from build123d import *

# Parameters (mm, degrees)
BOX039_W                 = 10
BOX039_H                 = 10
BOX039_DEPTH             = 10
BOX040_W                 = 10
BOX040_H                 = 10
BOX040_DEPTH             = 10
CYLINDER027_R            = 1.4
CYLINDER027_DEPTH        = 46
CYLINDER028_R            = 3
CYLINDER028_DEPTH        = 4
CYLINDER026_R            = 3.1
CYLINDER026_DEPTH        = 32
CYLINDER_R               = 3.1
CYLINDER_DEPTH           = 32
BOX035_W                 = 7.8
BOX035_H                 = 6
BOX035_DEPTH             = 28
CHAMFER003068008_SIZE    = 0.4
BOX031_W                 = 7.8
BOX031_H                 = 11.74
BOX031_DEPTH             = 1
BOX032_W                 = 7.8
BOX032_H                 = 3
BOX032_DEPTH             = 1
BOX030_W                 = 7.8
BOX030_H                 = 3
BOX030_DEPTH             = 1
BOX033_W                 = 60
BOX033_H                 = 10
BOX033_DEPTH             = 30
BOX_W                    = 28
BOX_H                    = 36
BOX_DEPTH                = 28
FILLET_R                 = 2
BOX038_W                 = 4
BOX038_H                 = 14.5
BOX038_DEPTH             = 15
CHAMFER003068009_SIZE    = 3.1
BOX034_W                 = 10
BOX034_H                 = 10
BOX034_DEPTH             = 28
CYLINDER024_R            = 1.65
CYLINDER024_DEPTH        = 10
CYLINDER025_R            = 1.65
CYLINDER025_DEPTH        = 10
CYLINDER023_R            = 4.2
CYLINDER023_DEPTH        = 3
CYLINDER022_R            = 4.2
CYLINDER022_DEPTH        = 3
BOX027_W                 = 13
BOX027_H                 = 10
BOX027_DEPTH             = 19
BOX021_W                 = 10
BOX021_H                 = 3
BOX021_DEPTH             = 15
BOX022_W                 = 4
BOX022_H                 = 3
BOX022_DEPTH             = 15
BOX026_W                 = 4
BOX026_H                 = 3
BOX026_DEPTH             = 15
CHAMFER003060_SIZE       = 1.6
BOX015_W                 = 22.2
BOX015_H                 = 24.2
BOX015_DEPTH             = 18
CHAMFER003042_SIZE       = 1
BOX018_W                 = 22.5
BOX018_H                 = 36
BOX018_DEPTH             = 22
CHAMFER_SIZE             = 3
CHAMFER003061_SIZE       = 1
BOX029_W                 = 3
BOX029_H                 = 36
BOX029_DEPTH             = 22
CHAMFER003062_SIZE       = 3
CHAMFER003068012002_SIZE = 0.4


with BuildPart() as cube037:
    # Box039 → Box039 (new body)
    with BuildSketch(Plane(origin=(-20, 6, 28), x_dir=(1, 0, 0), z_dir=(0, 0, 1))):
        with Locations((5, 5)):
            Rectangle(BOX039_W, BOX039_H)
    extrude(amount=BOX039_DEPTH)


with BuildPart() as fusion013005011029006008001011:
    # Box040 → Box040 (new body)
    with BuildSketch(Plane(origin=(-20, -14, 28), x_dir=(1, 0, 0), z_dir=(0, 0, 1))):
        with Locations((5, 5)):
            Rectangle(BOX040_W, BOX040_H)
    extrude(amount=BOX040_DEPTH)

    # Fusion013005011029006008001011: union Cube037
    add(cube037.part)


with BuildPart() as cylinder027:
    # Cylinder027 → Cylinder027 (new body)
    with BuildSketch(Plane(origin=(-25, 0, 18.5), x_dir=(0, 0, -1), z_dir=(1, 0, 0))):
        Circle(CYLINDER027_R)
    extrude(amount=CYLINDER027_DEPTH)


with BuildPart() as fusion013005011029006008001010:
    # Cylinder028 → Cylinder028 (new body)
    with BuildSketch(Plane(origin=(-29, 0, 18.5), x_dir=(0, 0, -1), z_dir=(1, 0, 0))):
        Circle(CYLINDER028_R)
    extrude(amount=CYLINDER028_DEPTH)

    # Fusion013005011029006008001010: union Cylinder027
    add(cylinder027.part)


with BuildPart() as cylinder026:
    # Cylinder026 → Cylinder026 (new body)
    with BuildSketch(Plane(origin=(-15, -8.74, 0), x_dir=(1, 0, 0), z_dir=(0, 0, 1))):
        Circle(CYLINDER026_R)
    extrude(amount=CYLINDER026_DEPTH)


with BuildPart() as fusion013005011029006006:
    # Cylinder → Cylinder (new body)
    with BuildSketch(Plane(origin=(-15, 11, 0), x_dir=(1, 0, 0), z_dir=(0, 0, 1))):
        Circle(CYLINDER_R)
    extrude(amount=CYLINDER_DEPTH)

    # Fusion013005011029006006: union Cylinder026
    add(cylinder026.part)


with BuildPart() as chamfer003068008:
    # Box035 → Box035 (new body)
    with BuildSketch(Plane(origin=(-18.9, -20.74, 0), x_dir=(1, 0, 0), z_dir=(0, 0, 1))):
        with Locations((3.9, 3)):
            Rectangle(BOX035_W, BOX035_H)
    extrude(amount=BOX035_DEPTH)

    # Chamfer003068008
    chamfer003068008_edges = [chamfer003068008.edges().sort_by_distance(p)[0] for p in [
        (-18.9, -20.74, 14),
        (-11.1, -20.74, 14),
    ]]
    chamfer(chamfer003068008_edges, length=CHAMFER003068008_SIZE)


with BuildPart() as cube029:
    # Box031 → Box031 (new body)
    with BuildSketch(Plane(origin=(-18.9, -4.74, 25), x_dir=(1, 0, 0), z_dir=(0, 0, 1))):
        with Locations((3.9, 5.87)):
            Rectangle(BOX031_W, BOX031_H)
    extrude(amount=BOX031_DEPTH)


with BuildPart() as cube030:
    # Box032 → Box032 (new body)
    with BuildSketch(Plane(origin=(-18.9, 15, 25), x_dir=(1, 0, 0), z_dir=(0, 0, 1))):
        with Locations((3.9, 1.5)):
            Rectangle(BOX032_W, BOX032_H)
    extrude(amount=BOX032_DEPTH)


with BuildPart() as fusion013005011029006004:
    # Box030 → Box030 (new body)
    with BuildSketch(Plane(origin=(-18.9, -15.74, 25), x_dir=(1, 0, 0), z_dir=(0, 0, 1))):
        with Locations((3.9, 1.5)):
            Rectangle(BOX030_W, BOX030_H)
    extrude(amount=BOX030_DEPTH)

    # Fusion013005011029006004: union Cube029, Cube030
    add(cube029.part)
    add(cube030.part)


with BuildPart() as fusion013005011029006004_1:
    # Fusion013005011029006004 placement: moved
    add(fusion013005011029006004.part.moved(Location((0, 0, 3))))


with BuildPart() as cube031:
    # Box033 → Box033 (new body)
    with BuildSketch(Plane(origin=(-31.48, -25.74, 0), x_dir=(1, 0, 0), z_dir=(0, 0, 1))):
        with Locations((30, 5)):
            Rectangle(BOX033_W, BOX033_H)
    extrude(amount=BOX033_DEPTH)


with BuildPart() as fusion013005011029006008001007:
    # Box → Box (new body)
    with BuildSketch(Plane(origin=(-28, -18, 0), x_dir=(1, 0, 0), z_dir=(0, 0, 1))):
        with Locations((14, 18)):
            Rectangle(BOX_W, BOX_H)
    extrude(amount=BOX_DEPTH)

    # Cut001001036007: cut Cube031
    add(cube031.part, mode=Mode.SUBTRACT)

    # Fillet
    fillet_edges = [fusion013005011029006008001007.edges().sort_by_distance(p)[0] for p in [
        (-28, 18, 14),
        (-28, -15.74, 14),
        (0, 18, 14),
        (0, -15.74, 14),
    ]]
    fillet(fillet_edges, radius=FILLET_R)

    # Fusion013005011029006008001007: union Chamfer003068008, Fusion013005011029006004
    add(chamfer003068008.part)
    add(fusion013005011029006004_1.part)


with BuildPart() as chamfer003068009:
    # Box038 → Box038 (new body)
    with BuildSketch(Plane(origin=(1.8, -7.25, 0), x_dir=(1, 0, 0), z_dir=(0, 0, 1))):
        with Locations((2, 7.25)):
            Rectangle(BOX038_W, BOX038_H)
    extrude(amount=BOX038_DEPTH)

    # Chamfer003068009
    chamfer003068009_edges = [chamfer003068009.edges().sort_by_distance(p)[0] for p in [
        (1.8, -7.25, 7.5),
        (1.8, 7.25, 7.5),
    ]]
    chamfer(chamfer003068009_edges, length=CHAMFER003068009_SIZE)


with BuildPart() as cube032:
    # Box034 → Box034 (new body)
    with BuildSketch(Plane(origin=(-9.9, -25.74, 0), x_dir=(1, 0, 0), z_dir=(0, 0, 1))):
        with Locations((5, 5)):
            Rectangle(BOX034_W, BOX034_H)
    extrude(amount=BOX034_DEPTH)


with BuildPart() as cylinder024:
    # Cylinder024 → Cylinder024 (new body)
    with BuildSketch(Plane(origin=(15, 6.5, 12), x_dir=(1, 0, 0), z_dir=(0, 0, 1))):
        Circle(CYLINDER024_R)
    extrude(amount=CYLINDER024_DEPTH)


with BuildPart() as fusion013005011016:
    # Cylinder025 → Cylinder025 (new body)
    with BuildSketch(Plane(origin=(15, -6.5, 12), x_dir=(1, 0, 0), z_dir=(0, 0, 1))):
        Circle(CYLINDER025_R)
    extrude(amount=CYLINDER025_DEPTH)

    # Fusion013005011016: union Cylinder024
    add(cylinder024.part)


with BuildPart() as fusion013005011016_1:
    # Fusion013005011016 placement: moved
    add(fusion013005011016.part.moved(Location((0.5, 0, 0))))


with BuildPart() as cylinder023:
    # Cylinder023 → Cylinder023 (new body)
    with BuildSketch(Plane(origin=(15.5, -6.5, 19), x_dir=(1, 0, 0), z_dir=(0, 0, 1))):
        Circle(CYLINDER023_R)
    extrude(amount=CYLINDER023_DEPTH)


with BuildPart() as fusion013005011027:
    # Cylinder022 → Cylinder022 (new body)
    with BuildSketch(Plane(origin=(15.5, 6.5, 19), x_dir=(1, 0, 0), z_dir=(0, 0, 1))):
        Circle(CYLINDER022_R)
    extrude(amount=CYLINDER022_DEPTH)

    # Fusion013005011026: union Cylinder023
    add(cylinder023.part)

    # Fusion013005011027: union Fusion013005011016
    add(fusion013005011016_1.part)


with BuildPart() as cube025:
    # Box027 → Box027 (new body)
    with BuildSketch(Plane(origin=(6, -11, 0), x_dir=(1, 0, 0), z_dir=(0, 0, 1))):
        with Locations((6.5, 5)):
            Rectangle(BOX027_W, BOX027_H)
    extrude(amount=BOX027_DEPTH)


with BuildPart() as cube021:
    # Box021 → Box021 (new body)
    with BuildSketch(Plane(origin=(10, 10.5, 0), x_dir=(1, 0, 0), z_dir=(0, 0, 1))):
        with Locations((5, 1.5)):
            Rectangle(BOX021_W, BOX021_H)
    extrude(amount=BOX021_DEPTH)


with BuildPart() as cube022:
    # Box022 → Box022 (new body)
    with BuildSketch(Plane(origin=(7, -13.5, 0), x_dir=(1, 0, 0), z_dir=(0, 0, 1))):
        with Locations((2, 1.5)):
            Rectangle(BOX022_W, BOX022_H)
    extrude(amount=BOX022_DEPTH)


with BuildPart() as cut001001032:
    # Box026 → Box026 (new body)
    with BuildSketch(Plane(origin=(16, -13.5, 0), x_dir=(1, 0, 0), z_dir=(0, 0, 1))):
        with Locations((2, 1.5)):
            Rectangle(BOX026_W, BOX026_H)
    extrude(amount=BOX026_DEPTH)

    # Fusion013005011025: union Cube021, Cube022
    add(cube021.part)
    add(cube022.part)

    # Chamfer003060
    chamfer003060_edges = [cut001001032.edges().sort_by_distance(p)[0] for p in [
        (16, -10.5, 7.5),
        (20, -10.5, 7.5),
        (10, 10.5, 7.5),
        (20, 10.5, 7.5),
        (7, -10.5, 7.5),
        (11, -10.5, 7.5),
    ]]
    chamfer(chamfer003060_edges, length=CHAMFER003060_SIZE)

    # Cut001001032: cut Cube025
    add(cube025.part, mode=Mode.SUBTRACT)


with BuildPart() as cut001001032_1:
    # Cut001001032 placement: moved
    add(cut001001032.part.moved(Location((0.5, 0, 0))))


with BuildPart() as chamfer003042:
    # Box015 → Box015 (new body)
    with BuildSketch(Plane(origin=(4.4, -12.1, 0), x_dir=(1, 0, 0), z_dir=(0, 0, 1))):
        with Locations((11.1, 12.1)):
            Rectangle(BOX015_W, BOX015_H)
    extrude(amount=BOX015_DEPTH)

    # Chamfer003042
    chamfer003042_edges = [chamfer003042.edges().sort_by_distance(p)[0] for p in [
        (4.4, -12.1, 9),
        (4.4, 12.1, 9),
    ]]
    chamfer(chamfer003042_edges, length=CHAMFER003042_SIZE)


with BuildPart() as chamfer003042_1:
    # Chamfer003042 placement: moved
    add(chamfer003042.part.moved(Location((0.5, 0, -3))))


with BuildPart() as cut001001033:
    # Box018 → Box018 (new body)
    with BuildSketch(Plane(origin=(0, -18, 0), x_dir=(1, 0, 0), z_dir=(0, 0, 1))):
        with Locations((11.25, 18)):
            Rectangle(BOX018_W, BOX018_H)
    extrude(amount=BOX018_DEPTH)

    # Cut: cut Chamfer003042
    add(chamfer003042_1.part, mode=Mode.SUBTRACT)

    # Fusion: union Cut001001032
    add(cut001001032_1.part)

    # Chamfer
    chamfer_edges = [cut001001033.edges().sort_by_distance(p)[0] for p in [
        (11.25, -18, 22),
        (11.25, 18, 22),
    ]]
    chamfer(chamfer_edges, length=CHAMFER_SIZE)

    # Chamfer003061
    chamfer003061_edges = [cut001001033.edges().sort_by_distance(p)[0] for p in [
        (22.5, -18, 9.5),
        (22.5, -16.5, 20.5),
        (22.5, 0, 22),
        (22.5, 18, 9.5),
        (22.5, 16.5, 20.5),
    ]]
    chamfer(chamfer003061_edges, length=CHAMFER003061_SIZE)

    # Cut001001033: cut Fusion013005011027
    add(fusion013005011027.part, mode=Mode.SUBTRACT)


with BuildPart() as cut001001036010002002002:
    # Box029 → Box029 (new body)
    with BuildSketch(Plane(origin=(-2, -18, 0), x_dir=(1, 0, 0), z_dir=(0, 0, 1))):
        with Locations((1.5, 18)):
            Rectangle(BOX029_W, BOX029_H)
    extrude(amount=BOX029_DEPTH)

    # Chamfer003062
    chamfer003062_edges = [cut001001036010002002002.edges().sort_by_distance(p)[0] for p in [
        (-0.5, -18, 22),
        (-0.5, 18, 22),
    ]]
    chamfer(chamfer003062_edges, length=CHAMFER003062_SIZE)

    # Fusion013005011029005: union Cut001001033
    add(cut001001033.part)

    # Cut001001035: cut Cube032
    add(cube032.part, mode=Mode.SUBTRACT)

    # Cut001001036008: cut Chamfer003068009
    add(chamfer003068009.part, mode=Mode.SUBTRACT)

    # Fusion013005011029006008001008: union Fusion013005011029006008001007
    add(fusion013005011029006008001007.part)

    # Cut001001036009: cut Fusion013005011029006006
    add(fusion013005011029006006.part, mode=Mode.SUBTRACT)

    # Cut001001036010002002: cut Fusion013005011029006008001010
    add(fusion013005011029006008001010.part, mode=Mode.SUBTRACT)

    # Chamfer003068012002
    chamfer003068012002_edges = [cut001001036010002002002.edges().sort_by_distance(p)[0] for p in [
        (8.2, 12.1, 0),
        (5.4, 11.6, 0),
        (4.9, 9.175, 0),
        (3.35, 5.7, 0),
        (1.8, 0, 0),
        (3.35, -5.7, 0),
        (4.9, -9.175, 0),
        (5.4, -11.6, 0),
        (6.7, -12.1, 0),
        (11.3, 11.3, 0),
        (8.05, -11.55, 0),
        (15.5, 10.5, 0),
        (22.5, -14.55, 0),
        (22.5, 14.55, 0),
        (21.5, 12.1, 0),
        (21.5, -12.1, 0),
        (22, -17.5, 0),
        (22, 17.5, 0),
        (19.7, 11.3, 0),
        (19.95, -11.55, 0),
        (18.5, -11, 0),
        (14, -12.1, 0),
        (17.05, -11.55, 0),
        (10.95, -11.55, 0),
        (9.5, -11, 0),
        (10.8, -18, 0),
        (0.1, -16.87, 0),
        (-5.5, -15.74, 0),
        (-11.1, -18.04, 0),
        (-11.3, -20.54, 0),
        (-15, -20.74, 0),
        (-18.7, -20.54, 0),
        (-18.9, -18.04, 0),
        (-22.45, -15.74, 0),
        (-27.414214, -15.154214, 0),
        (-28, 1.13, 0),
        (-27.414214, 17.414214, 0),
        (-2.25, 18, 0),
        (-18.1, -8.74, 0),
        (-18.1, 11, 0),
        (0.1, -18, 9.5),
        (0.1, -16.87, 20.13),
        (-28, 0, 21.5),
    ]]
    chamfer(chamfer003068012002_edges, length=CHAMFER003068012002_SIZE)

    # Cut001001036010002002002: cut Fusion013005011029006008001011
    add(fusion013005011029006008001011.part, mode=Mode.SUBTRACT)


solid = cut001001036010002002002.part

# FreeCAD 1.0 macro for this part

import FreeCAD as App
import Part
import Sketcher

V = App.Vector


def edges_at(feature, points):
    """Names of the edges that pass closest to the given points."""
    edges = feature.Shape.Edges
    near = lambda p: min(range(len(edges)), key=lambda i: edges[i].distToShape(Part.Vertex(*p))[0])
    return sorted({f"Edge{near(p) + 1}" for p in points})


def add_polygon(sketch, points):
    """Adds a closed chain of lines whose ends are joined by coincident constraints."""
    first, n = sketch.GeometryCount, len(points)
    for a, b in zip(points, points[1:] + points[:1]):
        sketch.addGeometry(Part.LineSegment(App.Vector(*a, 0), App.Vector(*b, 0)), False)
    for i in range(n):
        sketch.addConstraint(Sketcher.Constraint("Coincident", first + i, 2, first + (i + 1) % n, 1))

doc = App.newDocument("Part")
params = doc.addObject("Spreadsheet::Sheet", "Params")
for row, (alias, value) in enumerate([
    ("sketch1_width", "10 mm"),
    ("pad1_length", "10 mm"),
    ("sketch2_width", "10 mm"),
    ("pad2_length", "10 mm"),
    ("sketch3_diameter", "2.8 mm"),
    ("pad3_length", "46 mm"),
    ("sketch4_diameter", "6 mm"),
    ("pad4_length", "4 mm"),
    ("sketch5_diameter", "6.2 mm"),
    ("pad5_length", "32 mm"),
    ("sketch6_diameter", "6.2 mm"),
    ("pad6_length", "32 mm"),
    ("sketch7_height", "6 mm"),
    ("sketch7_width", "7.8 mm"),
    ("pad7_length", "28 mm"),
    ("chamfer_size", "0.4 mm"),
    ("sketch8_width", "7.8 mm"),
    ("sketch8_height", "11.74 mm"),
    ("pad8_length", "1 mm"),
    ("sketch9_height", "3 mm"),
    ("sketch9_width", "7.8 mm"),
    ("pad9_length", "1 mm"),
    ("sketch10_height", "3 mm"),
    ("sketch10_width", "7.8 mm"),
    ("pad10_length", "1 mm"),
    ("sketch11_width", "60 mm"),
    ("sketch11_height", "10 mm"),
    ("pad11_length", "30 mm"),
    ("sketch12_width", "28 mm"),
    ("sketch12_height", "36 mm"),
    ("pad12_length", "28 mm"),
    ("fillet_radius", "2 mm"),
    ("sketch13_width", "4 mm"),
    ("sketch13_height", "14.5 mm"),
    ("pad13_length", "15 mm"),
    ("chamfer2_size", "3.1 mm"),
    ("sketch14_width", "10 mm"),
    ("pad14_length", "28 mm"),
    ("sketch15_diameter", "3.3 mm"),
    ("pad15_length", "10 mm"),
    ("sketch16_diameter", "3.3 mm"),
    ("pad16_length", "10 mm"),
    ("sketch17_diameter", "8.4 mm"),
    ("pad17_length", "3 mm"),
    ("sketch18_diameter", "8.4 mm"),
    ("pad18_length", "3 mm"),
    ("sketch19_width", "13 mm"),
    ("sketch19_height", "10 mm"),
    ("pad19_length", "19 mm"),
    ("sketch20_width", "10 mm"),
    ("sketch20_height", "3 mm"),
    ("pad20_length", "15 mm"),
    ("sketch21_width", "4 mm"),
    ("sketch21_height", "3 mm"),
    ("pad21_length", "15 mm"),
    ("sketch22_width", "4 mm"),
    ("sketch22_height", "3 mm"),
    ("pad22_length", "15 mm"),
    ("chamfer3_size", "1.6 mm"),
    ("sketch23_width", "22.2 mm"),
    ("sketch23_height", "24.2 mm"),
    ("pad23_length", "18 mm"),
    ("chamfer4_size", "1 mm"),
    ("sketch24_height", "36 mm"),
    ("sketch24_width", "22.5 mm"),
    ("pad24_length", "22 mm"),
    ("chamfer5_size", "3 mm"),
    ("chamfer6_size", "1 mm"),
    ("sketch25_width", "3 mm"),
    ("sketch25_height", "36 mm"),
    ("pad25_length", "22 mm"),
    ("chamfer7_size", "3 mm"),
    ("chamfer8_size", "0.4 mm"),
], start=1):
    params.set(f"A{row}", alias)
    params.set(f"B{row}", "=" + value)
    params.setAlias(f"B{row}", alias)

body = doc.addObject("PartDesign::Body", "Body")

# Sketch on XY plane
sketch1 = doc.addObject("Sketcher::SketchObject", "Sketch")
body.addObject(sketch1)
sketch1.AttachmentSupport = (doc.XY_Plane, [""])
sketch1.MapMode = "FlatFace"
sketch1.AttachmentOffset = App.Placement(V(0, 0, 28), App.Rotation())
add_polygon(sketch1, [(-20, 16), (-20, 6), (-10, 6), (-10, 16)])  # lines 0-3
sketch1.addConstraint([
    Sketcher.Constraint("Vertical", 0),
    Sketcher.Constraint("Horizontal", 1),
    Sketcher.Constraint("Vertical", 2),
    Sketcher.Constraint("Horizontal", 3),
    Sketcher.Constraint("Equal", 3, 0),
    Sketcher.Constraint("DistanceX", 1, 1, 1, 2, 10.0),
    Sketcher.Constraint("DistanceX", 0, 2, -1, 1, 20.0),
    Sketcher.Constraint("DistanceY", -1, 1, 0, 2, 6.0),
])
sketch1.setExpression("Constraints[9]", "Params.sketch1_width")
pad1 = doc.addObject("PartDesign::Pad", "Pad")
body.addObject(pad1)
pad1.Profile = sketch1
pad1.setExpression("Length", "Params.pad1_length")
body2 = doc.addObject("PartDesign::Body", "Body001")
body2.AllowCompound = True

# Sketch on XY plane
sketch2 = doc.addObject("Sketcher::SketchObject", "Sketch001")
body2.addObject(sketch2)
sketch2.AttachmentSupport = (doc.getObject("XY_Plane001"), [""])
sketch2.MapMode = "FlatFace"
sketch2.AttachmentOffset = App.Placement(V(0, 0, 28), App.Rotation())
add_polygon(sketch2, [(-20, -4), (-20, -14), (-10, -14), (-10, -4)])  # lines 0-3
sketch2.addConstraint([
    Sketcher.Constraint("Vertical", 0),
    Sketcher.Constraint("Horizontal", 1),
    Sketcher.Constraint("Vertical", 2),
    Sketcher.Constraint("Horizontal", 3),
    Sketcher.Constraint("Equal", 3, 0),
    Sketcher.Constraint("DistanceX", 1, 1, 1, 2, 10.0),
    Sketcher.Constraint("DistanceX", 0, 2, -1, 1, 20.0),
    Sketcher.Constraint("DistanceY", 0, 2, -1, 1, 14.0),
])
sketch2.setExpression("Constraints[9]", "Params.sketch2_width")
pad2 = doc.addObject("PartDesign::Pad", "Pad001")
body2.addObject(pad2)
pad2.Profile = sketch2
pad2.setExpression("Length", "Params.pad2_length")
doc.recompute()

boolean = doc.addObject("PartDesign::Boolean", "Boolean")
body2.addObject(boolean)
boolean.Type = "Fuse"
boolean.addObjects([body])
body3 = doc.addObject("PartDesign::Body", "Body002")

# Sketch on YZ plane
sketch3 = doc.addObject("Sketcher::SketchObject", "Sketch002")
body3.addObject(sketch3)
sketch3.AttachmentSupport = (doc.getObject("YZ_Plane002"), [""])
sketch3.MapMode = "FlatFace"
sketch3.AttachmentOffset = App.Placement(V(0, 0, -25), App.Rotation())
sketch3.addGeometry(Part.Circle(V(0, 18.5, 0), V(0, 0, 1), 1.4), False)
sketch3.addConstraint([
    Sketcher.Constraint("PointOnObject", 0, 3, -2),
    Sketcher.Constraint("Diameter", 0, 2.8),
    Sketcher.Constraint("DistanceY", -1, 1, 0, 3, 18.5),
])
sketch3.setExpression("Constraints[1]", "Params.sketch3_diameter")
pad3 = doc.addObject("PartDesign::Pad", "Pad002")
body3.addObject(pad3)
pad3.Profile = sketch3
pad3.setExpression("Length", "Params.pad3_length")
body4 = doc.addObject("PartDesign::Body", "Body003")

# Sketch on YZ plane
sketch4 = doc.addObject("Sketcher::SketchObject", "Sketch003")
body4.addObject(sketch4)
sketch4.AttachmentSupport = (doc.getObject("YZ_Plane003"), [""])
sketch4.MapMode = "FlatFace"
sketch4.AttachmentOffset = App.Placement(V(0, 0, -29), App.Rotation())
sketch4.addGeometry(Part.Circle(V(0, 18.5, 0), V(0, 0, 1), 3), False)
sketch4.addConstraint([
    Sketcher.Constraint("PointOnObject", 0, 3, -2),
    Sketcher.Constraint("Diameter", 0, 6.0),
    Sketcher.Constraint("DistanceY", -1, 1, 0, 3, 18.5),
])
sketch4.setExpression("Constraints[1]", "Params.sketch4_diameter")
pad4 = doc.addObject("PartDesign::Pad", "Pad003")
body4.addObject(pad4)
pad4.Profile = sketch4
pad4.setExpression("Length", "Params.pad4_length")
doc.recompute()

boolean2 = doc.addObject("PartDesign::Boolean", "Boolean001")
body4.addObject(boolean2)
boolean2.Type = "Fuse"
boolean2.addObjects([body3])
body5 = doc.addObject("PartDesign::Body", "Body004")

# Sketch on XY plane
sketch5 = doc.addObject("Sketcher::SketchObject", "Sketch004")
body5.addObject(sketch5)
sketch5.AttachmentSupport = (doc.getObject("XY_Plane004"), [""])
sketch5.MapMode = "FlatFace"
sketch5.addGeometry(Part.Circle(V(-15, -8.7, 0), V(0, 0, 1), 3.1), False)
sketch5.addConstraint([
    Sketcher.Constraint("Diameter", 0, 6.2),
    Sketcher.Constraint("DistanceX", 0, 3, -1, 1, 15.0),
    Sketcher.Constraint("DistanceY", 0, 3, -1, 1, 8.74),
])
sketch5.setExpression("Constraints[0]", "Params.sketch5_diameter")
pad5 = doc.addObject("PartDesign::Pad", "Pad004")
body5.addObject(pad5)
pad5.Profile = sketch5
pad5.setExpression("Length", "Params.pad5_length")
body6 = doc.addObject("PartDesign::Body", "Body005")
body6.AllowCompound = True

# Sketch on XY plane
sketch6 = doc.addObject("Sketcher::SketchObject", "Sketch005")
body6.addObject(sketch6)
sketch6.AttachmentSupport = (doc.getObject("XY_Plane005"), [""])
sketch6.MapMode = "FlatFace"
sketch6.addGeometry(Part.Circle(V(-15, 11, 0), V(0, 0, 1), 3.1), False)
sketch6.addConstraint([
    Sketcher.Constraint("Diameter", 0, 6.2),
    Sketcher.Constraint("DistanceX", 0, 3, -1, 1, 15.0),
    Sketcher.Constraint("DistanceY", -1, 1, 0, 3, 11.0),
])
sketch6.setExpression("Constraints[0]", "Params.sketch6_diameter")
pad6 = doc.addObject("PartDesign::Pad", "Pad005")
body6.addObject(pad6)
pad6.Profile = sketch6
pad6.setExpression("Length", "Params.pad6_length")
doc.recompute()

boolean3 = doc.addObject("PartDesign::Boolean", "Boolean002")
body6.addObject(boolean3)
boolean3.Type = "Fuse"
boolean3.addObjects([body5])
body7 = doc.addObject("PartDesign::Body", "Body006")

# Sketch on XY plane
sketch7 = doc.addObject("Sketcher::SketchObject", "Sketch006")
body7.addObject(sketch7)
sketch7.AttachmentSupport = (doc.getObject("XY_Plane006"), [""])
sketch7.MapMode = "FlatFace"
add_polygon(sketch7, [(-19, -15), (-19, -21), (-11, -21), (-11, -15)])  # lines 0-3
sketch7.addConstraint([
    Sketcher.Constraint("Vertical", 0),
    Sketcher.Constraint("Horizontal", 1),
    Sketcher.Constraint("Vertical", 2),
    Sketcher.Constraint("Horizontal", 3),
    Sketcher.Constraint("DistanceY", 0, 2, 0, 1, 6.0),
    Sketcher.Constraint("DistanceX", 1, 1, 1, 2, 7.8),
    Sketcher.Constraint("DistanceX", 0, 2, -1, 1, 18.9),
    Sketcher.Constraint("DistanceY", 0, 2, -1, 1, 20.74),
])
sketch7.setExpression("Constraints[8]", "Params.sketch7_height")
sketch7.setExpression("Constraints[9]", "Params.sketch7_width")
pad7 = doc.addObject("PartDesign::Pad", "Pad006")
body7.addObject(pad7)
pad7.Profile = sketch7
pad7.setExpression("Length", "Params.pad7_length")
doc.recompute()

chamfer = doc.addObject("PartDesign::Chamfer", "Chamfer")
body7.addObject(chamfer)
chamfer.Base = (pad7, edges_at(pad7, [(-18.9, -20.74, 14), (-11.1, -20.74, 14)]))
chamfer.setExpression("Size", "Params.chamfer_size")
body8 = doc.addObject("PartDesign::Body", "Body007")

# Sketch on XY plane
sketch8 = doc.addObject("Sketcher::SketchObject", "Sketch007")
body8.addObject(sketch8)
sketch8.AttachmentSupport = (doc.getObject("XY_Plane007"), [""])
sketch8.MapMode = "FlatFace"
sketch8.AttachmentOffset = App.Placement(V(0, 0, 25), App.Rotation())
add_polygon(sketch8, [(-19, 7), (-19, -5), (-11, -5), (-11, 7)])  # lines 0-3
sketch8.addConstraint([
    Sketcher.Constraint("Vertical", 0),
    Sketcher.Constraint("Horizontal", 1),
    Sketcher.Constraint("Vertical", 2),
    Sketcher.Constraint("Horizontal", 3),
    Sketcher.Constraint("DistanceX", 1, 1, 1, 2, 7.8),
    Sketcher.Constraint("DistanceY", -1, 1, 2, 2, 7.0),
    Sketcher.Constraint("DistanceY", 0, 2, 0, 1, 11.74),
    Sketcher.Constraint("DistanceX", 0, 2, -1, 1, 18.9),
])
sketch8.setExpression("Constraints[8]", "Params.sketch8_width")
sketch8.setExpression("Constraints[10]", "Params.sketch8_height")
pad8 = doc.addObject("PartDesign::Pad", "Pad007")
body8.addObject(pad8)
pad8.Profile = sketch8
pad8.setExpression("Length", "Params.pad8_length")
body9 = doc.addObject("PartDesign::Body", "Body008")

# Sketch on XY plane
sketch9 = doc.addObject("Sketcher::SketchObject", "Sketch008")
body9.addObject(sketch9)
sketch9.AttachmentSupport = (doc.getObject("XY_Plane008"), [""])
sketch9.MapMode = "FlatFace"
sketch9.AttachmentOffset = App.Placement(V(0, 0, 25), App.Rotation())
add_polygon(sketch9, [(-18.9, 18), (-18.9, 15), (-11.1, 15), (-11.1, 18)])  # lines 0-3
sketch9.addConstraint([
    Sketcher.Constraint("Vertical", 0),
    Sketcher.Constraint("Horizontal", 1),
    Sketcher.Constraint("Vertical", 2),
    Sketcher.Constraint("Horizontal", 3),
    Sketcher.Constraint("DistanceY", 0, 2, 0, 1, 3.0),
    Sketcher.Constraint("DistanceX", 1, 1, 1, 2, 7.8),
    Sketcher.Constraint("DistanceY", -1, 1, 0, 2, 15.0),
    Sketcher.Constraint("DistanceX", 0, 2, -1, 1, 18.9),
])
sketch9.setExpression("Constraints[8]", "Params.sketch9_height")
sketch9.setExpression("Constraints[9]", "Params.sketch9_width")
pad9 = doc.addObject("PartDesign::Pad", "Pad008")
body9.addObject(pad9)
pad9.Profile = sketch9
pad9.setExpression("Length", "Params.pad9_length")
body10 = doc.addObject("PartDesign::Body", "Body009")
body10.AllowCompound = True

# Sketch on XY plane
sketch10 = doc.addObject("Sketcher::SketchObject", "Sketch009")
body10.addObject(sketch10)
sketch10.AttachmentSupport = (doc.getObject("XY_Plane009"), [""])
sketch10.MapMode = "FlatFace"
sketch10.AttachmentOffset = App.Placement(V(0, 0, 25), App.Rotation())
add_polygon(sketch10, [(-18.9, -12.7), (-18.9, -15.7), (-11.1, -15.7), (-11.1, -12.7)])  # lines 0-3
sketch10.addConstraint([
    Sketcher.Constraint("Vertical", 0),
    Sketcher.Constraint("Horizontal", 1),
    Sketcher.Constraint("Vertical", 2),
    Sketcher.Constraint("Horizontal", 3),
    Sketcher.Constraint("DistanceY", 0, 2, 0, 1, 3.0),
    Sketcher.Constraint("DistanceX", 1, 1, 1, 2, 7.8),
    Sketcher.Constraint("DistanceX", 0, 2, -1, 1, 18.9),
    Sketcher.Constraint("DistanceY", 0, 2, -1, 1, 15.74),
])
sketch10.setExpression("Constraints[8]", "Params.sketch10_height")
sketch10.setExpression("Constraints[9]", "Params.sketch10_width")
pad10 = doc.addObject("PartDesign::Pad", "Pad009")
body10.addObject(pad10)
pad10.Profile = sketch10
pad10.setExpression("Length", "Params.pad10_length")
doc.recompute()

boolean4 = doc.addObject("PartDesign::Boolean", "Boolean003")
body10.addObject(boolean4)
boolean4.Type = "Fuse"
boolean4.addObjects([body8])
doc.recompute()

boolean5 = doc.addObject("PartDesign::Boolean", "Boolean004")
body10.addObject(boolean5)
boolean5.Type = "Fuse"
boolean5.addObjects([body9])
body11 = doc.addObject("PartDesign::Body", "Body010")
body11.AllowCompound = True
doc.recompute()

body10.Placement = App.Placement(V(0, 0, 3), App.Rotation(V(0, 0, 1), 0))
boolean6 = doc.addObject("PartDesign::Boolean", "Boolean005")
body11.addObject(boolean6)
boolean6.Type = "Fuse"
boolean6.addObjects([body10])
body12 = doc.addObject("PartDesign::Body", "Body011")

# Sketch on XY plane
sketch11 = doc.addObject("Sketcher::SketchObject", "Sketch010")
body12.addObject(sketch11)
sketch11.AttachmentSupport = (doc.getObject("XY_Plane011"), [""])
sketch11.MapMode = "FlatFace"
add_polygon(sketch11, [(-31, -16), (-31, -26), (29, -26), (29, -16)])  # lines 0-3
sketch11.addConstraint([
    Sketcher.Constraint("Vertical", 0),
    Sketcher.Constraint("Horizontal", 1),
    Sketcher.Constraint("Vertical", 2),
    Sketcher.Constraint("Horizontal", 3),
    Sketcher.Constraint("DistanceX", 1, 1, 1, 2, 60.0),
    Sketcher.Constraint("DistanceY", 0, 2, 0, 1, 10.0),
    Sketcher.Constraint("DistanceX", 0, 2, -1, 1, 31.48),
    Sketcher.Constraint("DistanceY", 0, 2, -1, 1, 25.74),
])
sketch11.setExpression("Constraints[8]", "Params.sketch11_width")
sketch11.setExpression("Constraints[9]", "Params.sketch11_height")
pad11 = doc.addObject("PartDesign::Pad", "Pad010")
body12.addObject(pad11)
pad11.Profile = sketch11
pad11.setExpression("Length", "Params.pad11_length")
body13 = doc.addObject("PartDesign::Body", "Body012")

# Sketch on XY plane
sketch12 = doc.addObject("Sketcher::SketchObject", "Sketch011")
body13.addObject(sketch12)
sketch12.AttachmentSupport = (doc.getObject("XY_Plane012"), [""])
sketch12.MapMode = "FlatFace"
add_polygon(sketch12, [(-28, 18), (-28, -18), (0, -18), (0, 18)])  # lines 0-3
sketch12.addConstraint([
    Sketcher.Constraint("Vertical", 0),
    Sketcher.Constraint("Horizontal", 1),
    Sketcher.Constraint("Vertical", 2),
    Sketcher.Constraint("Horizontal", 3),
    Sketcher.Constraint("Symmetric", 1, 2, 2, 2, -1, 1),
    Sketcher.Constraint("DistanceX", 1, 1, 1, 2, 28.0),
    Sketcher.Constraint("DistanceY", 0, 2, 0, 1, 36.0),
])
sketch12.setExpression("Constraints[9]", "Params.sketch12_width")
sketch12.setExpression("Constraints[10]", "Params.sketch12_height")
pad12 = doc.addObject("PartDesign::Pad", "Pad011")
body13.addObject(pad12)
pad12.Profile = sketch12
pad12.setExpression("Length", "Params.pad12_length")
doc.recompute()

boolean7 = doc.addObject("PartDesign::Boolean", "Boolean006")
body13.addObject(boolean7)
boolean7.Type = "Cut"
boolean7.addObjects([body12])
doc.recompute()

fillet = doc.addObject("PartDesign::Fillet", "Fillet")
body13.addObject(fillet)
fillet.Base = (boolean7, edges_at(boolean7, [
    (-28, 18, 14),
    (-28, -15.74, 14),
    (0, 18, 14),
    (0, -15.74, 14),
]))
fillet.setExpression("Radius", "Params.fillet_radius")
doc.recompute()

boolean8 = doc.addObject("PartDesign::Boolean", "Boolean007")
body13.addObject(boolean8)
boolean8.Type = "Fuse"
boolean8.addObjects([body7])
doc.recompute()

boolean9 = doc.addObject("PartDesign::Boolean", "Boolean008")
body13.addObject(boolean9)
boolean9.Type = "Fuse"
boolean9.addObjects([body11])
body14 = doc.addObject("PartDesign::Body", "Body013")

# Sketch on XY plane
sketch13 = doc.addObject("Sketcher::SketchObject", "Sketch012")
body14.addObject(sketch13)
sketch13.AttachmentSupport = (doc.getObject("XY_Plane013"), [""])
sketch13.MapMode = "FlatFace"
add_polygon(sketch13, [(1.8, 7.2), (1.8, -7.2), (5.8, -7.2), (5.8, 7.2)])  # lines 0-3
sketch13.addConstraint([
    Sketcher.Constraint("Vertical", 0),
    Sketcher.Constraint("Horizontal", 1),
    Sketcher.Constraint("Vertical", 2),
    Sketcher.Constraint("Horizontal", 3),
    Sketcher.Constraint("DistanceX", 1, 1, 1, 2, 4.0),
    Sketcher.Constraint("DistanceY", 0, 2, 0, 1, 14.5),
    Sketcher.Constraint("DistanceX", -1, 1, 0, 2, 1.8),
    Sketcher.Constraint("DistanceY", 0, 2, -1, 1, 7.25),
])
sketch13.setExpression("Constraints[8]", "Params.sketch13_width")
sketch13.setExpression("Constraints[9]", "Params.sketch13_height")
pad13 = doc.addObject("PartDesign::Pad", "Pad012")
body14.addObject(pad13)
pad13.Profile = sketch13
pad13.setExpression("Length", "Params.pad13_length")
doc.recompute()

chamfer2 = doc.addObject("PartDesign::Chamfer", "Chamfer001")
body14.addObject(chamfer2)
chamfer2.Base = (pad13, edges_at(pad13, [(1.8, -7.25, 7.5), (1.8, 7.25, 7.5)]))
chamfer2.setExpression("Size", "Params.chamfer2_size")
body15 = doc.addObject("PartDesign::Body", "Body014")

# Sketch on XY plane
sketch14 = doc.addObject("Sketcher::SketchObject", "Sketch013")
body15.addObject(sketch14)
sketch14.AttachmentSupport = (doc.getObject("XY_Plane014"), [""])
sketch14.MapMode = "FlatFace"
add_polygon(sketch14, [(-10, -16), (-10, -26), (0, -26), (0, -16)])  # lines 0-3
sketch14.addConstraint([
    Sketcher.Constraint("Vertical", 0),
    Sketcher.Constraint("Horizontal", 1),
    Sketcher.Constraint("Vertical", 2),
    Sketcher.Constraint("Horizontal", 3),
    Sketcher.Constraint("Equal", 3, 0),
    Sketcher.Constraint("DistanceX", 1, 1, 1, 2, 10.0),
    Sketcher.Constraint("DistanceX", 0, 2, -1, 1, 9.9),
    Sketcher.Constraint("DistanceY", 0, 2, -1, 1, 25.74),
])
sketch14.setExpression("Constraints[9]", "Params.sketch14_width")
pad14 = doc.addObject("PartDesign::Pad", "Pad013")
body15.addObject(pad14)
pad14.Profile = sketch14
pad14.setExpression("Length", "Params.pad14_length")
body16 = doc.addObject("PartDesign::Body", "Body015")

# Sketch on XY plane
sketch15 = doc.addObject("Sketcher::SketchObject", "Sketch014")
body16.addObject(sketch15)
sketch15.AttachmentSupport = (doc.getObject("XY_Plane015"), [""])
sketch15.MapMode = "FlatFace"
sketch15.AttachmentOffset = App.Placement(V(0, 0, 12), App.Rotation())
sketch15.addGeometry(Part.Circle(V(15, 6.5, 0), V(0, 0, 1), 1.6), False)
sketch15.addConstraint([
    Sketcher.Constraint("Diameter", 0, 3.3),
    Sketcher.Constraint("DistanceX", -1, 1, 0, 3, 15.0),
    Sketcher.Constraint("DistanceY", -1, 1, 0, 3, 6.5),
])
sketch15.setExpression("Constraints[0]", "Params.sketch15_diameter")
pad15 = doc.addObject("PartDesign::Pad", "Pad014")
body16.addObject(pad15)
pad15.Profile = sketch15
pad15.setExpression("Length", "Params.pad15_length")
body17 = doc.addObject("PartDesign::Body", "Body016")
body17.AllowCompound = True

# Sketch on XY plane
sketch16 = doc.addObject("Sketcher::SketchObject", "Sketch015")
body17.addObject(sketch16)
sketch16.AttachmentSupport = (doc.getObject("XY_Plane016"), [""])
sketch16.MapMode = "FlatFace"
sketch16.AttachmentOffset = App.Placement(V(0, 0, 12), App.Rotation())
sketch16.addGeometry(Part.Circle(V(15, -6.5, 0), V(0, 0, 1), 1.6), False)
sketch16.addConstraint([
    Sketcher.Constraint("Diameter", 0, 3.3),
    Sketcher.Constraint("DistanceX", -1, 1, 0, 3, 15.0),
    Sketcher.Constraint("DistanceY", 0, 3, -1, 1, 6.5),
])
sketch16.setExpression("Constraints[0]", "Params.sketch16_diameter")
pad16 = doc.addObject("PartDesign::Pad", "Pad015")
body17.addObject(pad16)
pad16.Profile = sketch16
pad16.setExpression("Length", "Params.pad16_length")
doc.recompute()

boolean10 = doc.addObject("PartDesign::Boolean", "Boolean009")
body17.addObject(boolean10)
boolean10.Type = "Fuse"
boolean10.addObjects([body16])
body18 = doc.addObject("PartDesign::Body", "Body017")
body18.AllowCompound = True
doc.recompute()

body17.Placement = App.Placement(V(0.5, 0, 0), App.Rotation(V(0, 0, 1), 0))
boolean11 = doc.addObject("PartDesign::Boolean", "Boolean010")
body18.addObject(boolean11)
boolean11.Type = "Fuse"
boolean11.addObjects([body17])
body19 = doc.addObject("PartDesign::Body", "Body018")

# Sketch on XY plane
sketch17 = doc.addObject("Sketcher::SketchObject", "Sketch016")
body19.addObject(sketch17)
sketch17.AttachmentSupport = (doc.getObject("XY_Plane018"), [""])
sketch17.MapMode = "FlatFace"
sketch17.AttachmentOffset = App.Placement(V(0, 0, 19), App.Rotation())
sketch17.addGeometry(Part.Circle(V(15.5, -6.5, 0), V(0, 0, 1), 4.2), False)
sketch17.addConstraint([
    Sketcher.Constraint("Diameter", 0, 8.4),
    Sketcher.Constraint("DistanceX", -1, 1, 0, 3, 15.5),
    Sketcher.Constraint("DistanceY", 0, 3, -1, 1, 6.5),
])
sketch17.setExpression("Constraints[0]", "Params.sketch17_diameter")
pad17 = doc.addObject("PartDesign::Pad", "Pad016")
body19.addObject(pad17)
pad17.Profile = sketch17
pad17.setExpression("Length", "Params.pad17_length")
body20 = doc.addObject("PartDesign::Body", "Body019")
body20.AllowCompound = True

# Sketch on XY plane
sketch18 = doc.addObject("Sketcher::SketchObject", "Sketch017")
body20.addObject(sketch18)
sketch18.AttachmentSupport = (doc.getObject("XY_Plane019"), [""])
sketch18.MapMode = "FlatFace"
sketch18.AttachmentOffset = App.Placement(V(0, 0, 19), App.Rotation())
sketch18.addGeometry(Part.Circle(V(15.5, 6.5, 0), V(0, 0, 1), 4.2), False)
sketch18.addConstraint([
    Sketcher.Constraint("Diameter", 0, 8.4),
    Sketcher.Constraint("DistanceX", -1, 1, 0, 3, 15.5),
    Sketcher.Constraint("DistanceY", -1, 1, 0, 3, 6.5),
])
sketch18.setExpression("Constraints[0]", "Params.sketch18_diameter")
pad18 = doc.addObject("PartDesign::Pad", "Pad017")
body20.addObject(pad18)
pad18.Profile = sketch18
pad18.setExpression("Length", "Params.pad18_length")
doc.recompute()

boolean12 = doc.addObject("PartDesign::Boolean", "Boolean011")
body20.addObject(boolean12)
boolean12.Type = "Fuse"
boolean12.addObjects([body19])
doc.recompute()

boolean13 = doc.addObject("PartDesign::Boolean", "Boolean012")
body20.addObject(boolean13)
boolean13.Type = "Fuse"
boolean13.addObjects([body18])
body21 = doc.addObject("PartDesign::Body", "Body020")

# Sketch on XY plane
sketch19 = doc.addObject("Sketcher::SketchObject", "Sketch018")
body21.addObject(sketch19)
sketch19.AttachmentSupport = (doc.getObject("XY_Plane020"), [""])
sketch19.MapMode = "FlatFace"
add_polygon(sketch19, [(6, -1), (6, -11), (19, -11), (19, -1)])  # lines 0-3
sketch19.addConstraint([
    Sketcher.Constraint("Vertical", 0),
    Sketcher.Constraint("Horizontal", 1),
    Sketcher.Constraint("Vertical", 2),
    Sketcher.Constraint("Horizontal", 3),
    Sketcher.Constraint("DistanceX", 1, 1, 1, 2, 13.0),
    Sketcher.Constraint("DistanceY", 0, 2, 0, 1, 10.0),
    Sketcher.Constraint("DistanceX", -1, 1, 0, 2, 6.0),
    Sketcher.Constraint("DistanceY", 0, 2, -1, 1, 11.0),
])
sketch19.setExpression("Constraints[8]", "Params.sketch19_width")
sketch19.setExpression("Constraints[9]", "Params.sketch19_height")
pad19 = doc.addObject("PartDesign::Pad", "Pad018")
body21.addObject(pad19)
pad19.Profile = sketch19
pad19.setExpression("Length", "Params.pad19_length")
body22 = doc.addObject("PartDesign::Body", "Body021")

# Sketch on XY plane
sketch20 = doc.addObject("Sketcher::SketchObject", "Sketch019")
body22.addObject(sketch20)
sketch20.AttachmentSupport = (doc.getObject("XY_Plane021"), [""])
sketch20.MapMode = "FlatFace"
add_polygon(sketch20, [(10, 13.5), (10, 10.5), (20, 10.5), (20, 13.5)])  # lines 0-3
sketch20.addConstraint([
    Sketcher.Constraint("Vertical", 0),
    Sketcher.Constraint("Horizontal", 1),
    Sketcher.Constraint("Vertical", 2),
    Sketcher.Constraint("Horizontal", 3),
    Sketcher.Constraint("DistanceX", 1, 1, 1, 2, 10.0),
    Sketcher.Constraint("DistanceY", 0, 2, 0, 1, 3.0),
    Sketcher.Constraint("DistanceX", -1, 1, 0, 2, 10.0),
    Sketcher.Constraint("DistanceY", -1, 1, 0, 2, 10.5),
])
sketch20.setExpression("Constraints[8]", "Params.sketch20_width")
sketch20.setExpression("Constraints[9]", "Params.sketch20_height")
pad20 = doc.addObject("PartDesign::Pad", "Pad019")
body22.addObject(pad20)
pad20.Profile = sketch20
pad20.setExpression("Length", "Params.pad20_length")
body23 = doc.addObject("PartDesign::Body", "Body022")

# Sketch on XY plane
sketch21 = doc.addObject("Sketcher::SketchObject", "Sketch020")
body23.addObject(sketch21)
sketch21.AttachmentSupport = (doc.getObject("XY_Plane022"), [""])
sketch21.MapMode = "FlatFace"
add_polygon(sketch21, [(7, -10.5), (7, -13.5), (11, -13.5), (11, -10.5)])  # lines 0-3
sketch21.addConstraint([
    Sketcher.Constraint("Vertical", 0),
    Sketcher.Constraint("Horizontal", 1),
    Sketcher.Constraint("Vertical", 2),
    Sketcher.Constraint("Horizontal", 3),
    Sketcher.Constraint("DistanceX", 1, 1, 1, 2, 4.0),
    Sketcher.Constraint("DistanceY", 0, 2, 0, 1, 3.0),
    Sketcher.Constraint("DistanceX", -1, 1, 0, 2, 7.0),
    Sketcher.Constraint("DistanceY", 0, 2, -1, 1, 13.5),
])
sketch21.setExpression("Constraints[8]", "Params.sketch21_width")
sketch21.setExpression("Constraints[9]", "Params.sketch21_height")
pad21 = doc.addObject("PartDesign::Pad", "Pad020")
body23.addObject(pad21)
pad21.Profile = sketch21
pad21.setExpression("Length", "Params.pad21_length")
body24 = doc.addObject("PartDesign::Body", "Body023")
body24.AllowCompound = True

# Sketch on XY plane
sketch22 = doc.addObject("Sketcher::SketchObject", "Sketch021")
body24.addObject(sketch22)
sketch22.AttachmentSupport = (doc.getObject("XY_Plane023"), [""])
sketch22.MapMode = "FlatFace"
add_polygon(sketch22, [(16, -10.5), (16, -13.5), (20, -13.5), (20, -10.5)])  # lines 0-3
sketch22.addConstraint([
    Sketcher.Constraint("Vertical", 0),
    Sketcher.Constraint("Horizontal", 1),
    Sketcher.Constraint("Vertical", 2),
    Sketcher.Constraint("Horizontal", 3),
    Sketcher.Constraint("DistanceX", 1, 1, 1, 2, 4.0),
    Sketcher.Constraint("DistanceY", 0, 2, 0, 1, 3.0),
    Sketcher.Constraint("DistanceX", -1, 1, 0, 2, 16.0),
    Sketcher.Constraint("DistanceY", 0, 2, -1, 1, 13.5),
])
sketch22.setExpression("Constraints[8]", "Params.sketch22_width")
sketch22.setExpression("Constraints[9]", "Params.sketch22_height")
pad22 = doc.addObject("PartDesign::Pad", "Pad021")
body24.addObject(pad22)
pad22.Profile = sketch22
pad22.setExpression("Length", "Params.pad22_length")
doc.recompute()

boolean14 = doc.addObject("PartDesign::Boolean", "Boolean013")
body24.addObject(boolean14)
boolean14.Type = "Fuse"
boolean14.addObjects([body22])
doc.recompute()

boolean15 = doc.addObject("PartDesign::Boolean", "Boolean014")
body24.addObject(boolean15)
boolean15.Type = "Fuse"
boolean15.addObjects([body23])
doc.recompute()

chamfer3 = doc.addObject("PartDesign::Chamfer", "Chamfer002")
body24.addObject(chamfer3)
chamfer3.Base = (boolean15, edges_at(boolean15, [
    (16, -10.5, 7.5),
    (20, -10.5, 7.5),
    (10, 10.5, 7.5),
    (20, 10.5, 7.5),
    (7, -10.5, 7.5),
    (11, -10.5, 7.5),
]))
chamfer3.setExpression("Size", "Params.chamfer3_size")
doc.recompute()

boolean16 = doc.addObject("PartDesign::Boolean", "Boolean015")
body24.addObject(boolean16)
boolean16.Type = "Cut"
boolean16.addObjects([body21])
body25 = doc.addObject("PartDesign::Body", "Body024")
body25.AllowCompound = True
doc.recompute()

body24.Placement = App.Placement(V(0.5, 0, 0), App.Rotation(V(0, 0, 1), 0))
boolean17 = doc.addObject("PartDesign::Boolean", "Boolean016")
body25.addObject(boolean17)
boolean17.Type = "Fuse"
boolean17.addObjects([body24])
body26 = doc.addObject("PartDesign::Body", "Body025")

# Sketch on XY plane
sketch23 = doc.addObject("Sketcher::SketchObject", "Sketch022")
body26.addObject(sketch23)
sketch23.AttachmentSupport = (doc.getObject("XY_Plane025"), [""])
sketch23.MapMode = "FlatFace"
add_polygon(sketch23, [(4, 12), (4, -12), (27, -12), (27, 12)])  # lines 0-3
sketch23.addConstraint([
    Sketcher.Constraint("Vertical", 0),
    Sketcher.Constraint("Horizontal", 1),
    Sketcher.Constraint("Vertical", 2),
    Sketcher.Constraint("Horizontal", 3),
    Sketcher.Constraint("DistanceX", 1, 1, 1, 2, 22.2),
    Sketcher.Constraint("DistanceY", 0, 2, 0, 1, 24.2),
    Sketcher.Constraint("DistanceX", -1, 1, 0, 2, 4.4),
    Sketcher.Constraint("DistanceY", 0, 2, -1, 1, 12.1),
])
sketch23.setExpression("Constraints[8]", "Params.sketch23_width")
sketch23.setExpression("Constraints[9]", "Params.sketch23_height")
pad23 = doc.addObject("PartDesign::Pad", "Pad022")
body26.addObject(pad23)
pad23.Profile = sketch23
pad23.setExpression("Length", "Params.pad23_length")
doc.recompute()

chamfer4 = doc.addObject("PartDesign::Chamfer", "Chamfer003")
body26.addObject(chamfer4)
chamfer4.Base = (pad23, edges_at(pad23, [(4.4, -12.1, 9), (4.4, 12.1, 9)]))
chamfer4.setExpression("Size", "Params.chamfer4_size")
body27 = doc.addObject("PartDesign::Body", "Body026")
doc.recompute()

body26.Placement = App.Placement(V(0.5, 0, -3), App.Rotation(V(0, 0, 1), 0))
boolean18 = doc.addObject("PartDesign::Boolean", "Boolean017")
body27.addObject(boolean18)
boolean18.Type = "Fuse"
boolean18.addObjects([body26])
body28 = doc.addObject("PartDesign::Body", "Body027")

# Sketch on XY plane
sketch24 = doc.addObject("Sketcher::SketchObject", "Sketch023")
body28.addObject(sketch24)
sketch24.AttachmentSupport = (doc.getObject("XY_Plane027"), [""])
sketch24.MapMode = "FlatFace"
add_polygon(sketch24, [(0, 18), (0, -18), (22, -18), (22, 18)])  # lines 0-3
sketch24.addConstraint([
    Sketcher.Constraint("Vertical", 0),
    Sketcher.Constraint("Horizontal", 1),
    Sketcher.Constraint("Vertical", 2),
    Sketcher.Constraint("Horizontal", 3),
    Sketcher.Constraint("Symmetric", 0, 2, 3, 2, -1, 1),
    Sketcher.Constraint("DistanceY", 0, 2, 0, 1, 36.0),
    Sketcher.Constraint("DistanceX", 1, 1, 1, 2, 22.5),
])
sketch24.setExpression("Constraints[9]", "Params.sketch24_height")
sketch24.setExpression("Constraints[10]", "Params.sketch24_width")
pad24 = doc.addObject("PartDesign::Pad", "Pad023")
body28.addObject(pad24)
pad24.Profile = sketch24
pad24.setExpression("Length", "Params.pad24_length")
doc.recompute()

boolean19 = doc.addObject("PartDesign::Boolean", "Boolean018")
body28.addObject(boolean19)
boolean19.Type = "Cut"
boolean19.addObjects([body27])
doc.recompute()

boolean20 = doc.addObject("PartDesign::Boolean", "Boolean019")
body28.addObject(boolean20)
boolean20.Type = "Fuse"
boolean20.addObjects([body25])
doc.recompute()

chamfer5 = doc.addObject("PartDesign::Chamfer", "Chamfer004")
body28.addObject(chamfer5)
chamfer5.Base = (boolean20, edges_at(boolean20, [(11.25, -18, 22), (11.25, 18, 22)]))
chamfer5.setExpression("Size", "Params.chamfer5_size")
doc.recompute()

chamfer6 = doc.addObject("PartDesign::Chamfer", "Chamfer005")
body28.addObject(chamfer6)
chamfer6.Base = (chamfer5, edges_at(chamfer5, [
    (22.5, -18, 9.5),
    (22.5, -16.5, 20.5),
    (22.5, 0, 22),
    (22.5, 18, 9.5),
    (22.5, 16.5, 20.5),
]))
chamfer6.setExpression("Size", "Params.chamfer6_size")
doc.recompute()

boolean21 = doc.addObject("PartDesign::Boolean", "Boolean020")
body28.addObject(boolean21)
boolean21.Type = "Cut"
boolean21.addObjects([body20])
body29 = doc.addObject("PartDesign::Body", "Body028")

# Sketch on XY plane
sketch25 = doc.addObject("Sketcher::SketchObject", "Sketch024")
body29.addObject(sketch25)
sketch25.AttachmentSupport = (doc.getObject("XY_Plane028"), [""])
sketch25.MapMode = "FlatFace"
add_polygon(sketch25, [(-2, 18), (-2, -18), (1, -18), (1, 18)])  # lines 0-3
sketch25.addConstraint([
    Sketcher.Constraint("Vertical", 0),
    Sketcher.Constraint("Horizontal", 1),
    Sketcher.Constraint("Vertical", 2),
    Sketcher.Constraint("Horizontal", 3),
    Sketcher.Constraint("DistanceX", 1, 1, 1, 2, 3.0),
    Sketcher.Constraint("DistanceY", 0, 2, 0, 1, 36.0),
    Sketcher.Constraint("DistanceX", 0, 2, -1, 1, 2.0),
    Sketcher.Constraint("DistanceY", 0, 2, -1, 1, 18.0),
])
sketch25.setExpression("Constraints[8]", "Params.sketch25_width")
sketch25.setExpression("Constraints[9]", "Params.sketch25_height")
pad25 = doc.addObject("PartDesign::Pad", "Pad024")
body29.addObject(pad25)
pad25.Profile = sketch25
pad25.setExpression("Length", "Params.pad25_length")
doc.recompute()

chamfer7 = doc.addObject("PartDesign::Chamfer", "Chamfer006")
body29.addObject(chamfer7)
chamfer7.Base = (pad25, edges_at(pad25, [(-0.5, -18, 22), (-0.5, 18, 22)]))
chamfer7.setExpression("Size", "Params.chamfer7_size")
doc.recompute()

boolean22 = doc.addObject("PartDesign::Boolean", "Boolean021")
body29.addObject(boolean22)
boolean22.Type = "Fuse"
boolean22.addObjects([body28])
doc.recompute()

boolean23 = doc.addObject("PartDesign::Boolean", "Boolean022")
body29.addObject(boolean23)
boolean23.Type = "Cut"
boolean23.addObjects([body15])
doc.recompute()

boolean24 = doc.addObject("PartDesign::Boolean", "Boolean023")
body29.addObject(boolean24)
boolean24.Type = "Cut"
boolean24.addObjects([body14])
doc.recompute()

boolean25 = doc.addObject("PartDesign::Boolean", "Boolean024")
body29.addObject(boolean25)
boolean25.Type = "Fuse"
boolean25.addObjects([body13])
doc.recompute()

boolean26 = doc.addObject("PartDesign::Boolean", "Boolean025")
body29.addObject(boolean26)
boolean26.Type = "Cut"
boolean26.addObjects([body6])
doc.recompute()

boolean27 = doc.addObject("PartDesign::Boolean", "Boolean026")
body29.addObject(boolean27)
boolean27.Type = "Cut"
boolean27.addObjects([body4])
doc.recompute()

chamfer8 = doc.addObject("PartDesign::Chamfer", "Chamfer007")
body29.addObject(chamfer8)
chamfer8.Base = (boolean27, edges_at(boolean27, [
    (8.2, 12.1, 0),
    (5.4, 11.6, 0),
    (4.9, 9.175, 0),
    (3.35, 5.7, 0),
    (1.8, 0, 0),
    (3.35, -5.7, 0),
    (4.9, -9.175, 0),
    (5.4, -11.6, 0),
    (6.7, -12.1, 0),
    (11.3, 11.3, 0),
    (8.05, -11.55, 0),
    (15.5, 10.5, 0),
    (22.5, -14.55, 0),
    (22.5, 14.55, 0),
    (21.5, 12.1, 0),
    (21.5, -12.1, 0),
    (22, -17.5, 0),
    (22, 17.5, 0),
    (19.7, 11.3, 0),
    (19.95, -11.55, 0),
    (18.5, -11, 0),
    (14, -12.1, 0),
    (17.05, -11.55, 0),
    (10.95, -11.55, 0),
    (9.5, -11, 0),
    (10.8, -18, 0),
    (0.1, -16.87, 0),
    (-5.5, -15.74, 0),
    (-11.1, -18.04, 0),
    (-11.3, -20.54, 0),
    (-15, -20.74, 0),
    (-18.7, -20.54, 0),
    (-18.9, -18.04, 0),
    (-22.45, -15.74, 0),
    (-27.414, -15.154, 0),
    (-28, 1.13, 0),
    (-27.414, 17.414, 0),
    (-2.25, 18, 0),
    (-18.1, -8.74, 0),
    (-18.1, 11, 0),
    (0.1, -18, 9.5),
    (0.1, -16.87, 20.13),
    (-28, 0, 21.5),
]))
chamfer8.setExpression("Size", "Params.chamfer8_size")
doc.recompute()

boolean28 = doc.addObject("PartDesign::Boolean", "Boolean027")
body29.addObject(boolean28)
boolean28.Type = "Cut"
boolean28.addObjects([body2])

doc.recompute()
